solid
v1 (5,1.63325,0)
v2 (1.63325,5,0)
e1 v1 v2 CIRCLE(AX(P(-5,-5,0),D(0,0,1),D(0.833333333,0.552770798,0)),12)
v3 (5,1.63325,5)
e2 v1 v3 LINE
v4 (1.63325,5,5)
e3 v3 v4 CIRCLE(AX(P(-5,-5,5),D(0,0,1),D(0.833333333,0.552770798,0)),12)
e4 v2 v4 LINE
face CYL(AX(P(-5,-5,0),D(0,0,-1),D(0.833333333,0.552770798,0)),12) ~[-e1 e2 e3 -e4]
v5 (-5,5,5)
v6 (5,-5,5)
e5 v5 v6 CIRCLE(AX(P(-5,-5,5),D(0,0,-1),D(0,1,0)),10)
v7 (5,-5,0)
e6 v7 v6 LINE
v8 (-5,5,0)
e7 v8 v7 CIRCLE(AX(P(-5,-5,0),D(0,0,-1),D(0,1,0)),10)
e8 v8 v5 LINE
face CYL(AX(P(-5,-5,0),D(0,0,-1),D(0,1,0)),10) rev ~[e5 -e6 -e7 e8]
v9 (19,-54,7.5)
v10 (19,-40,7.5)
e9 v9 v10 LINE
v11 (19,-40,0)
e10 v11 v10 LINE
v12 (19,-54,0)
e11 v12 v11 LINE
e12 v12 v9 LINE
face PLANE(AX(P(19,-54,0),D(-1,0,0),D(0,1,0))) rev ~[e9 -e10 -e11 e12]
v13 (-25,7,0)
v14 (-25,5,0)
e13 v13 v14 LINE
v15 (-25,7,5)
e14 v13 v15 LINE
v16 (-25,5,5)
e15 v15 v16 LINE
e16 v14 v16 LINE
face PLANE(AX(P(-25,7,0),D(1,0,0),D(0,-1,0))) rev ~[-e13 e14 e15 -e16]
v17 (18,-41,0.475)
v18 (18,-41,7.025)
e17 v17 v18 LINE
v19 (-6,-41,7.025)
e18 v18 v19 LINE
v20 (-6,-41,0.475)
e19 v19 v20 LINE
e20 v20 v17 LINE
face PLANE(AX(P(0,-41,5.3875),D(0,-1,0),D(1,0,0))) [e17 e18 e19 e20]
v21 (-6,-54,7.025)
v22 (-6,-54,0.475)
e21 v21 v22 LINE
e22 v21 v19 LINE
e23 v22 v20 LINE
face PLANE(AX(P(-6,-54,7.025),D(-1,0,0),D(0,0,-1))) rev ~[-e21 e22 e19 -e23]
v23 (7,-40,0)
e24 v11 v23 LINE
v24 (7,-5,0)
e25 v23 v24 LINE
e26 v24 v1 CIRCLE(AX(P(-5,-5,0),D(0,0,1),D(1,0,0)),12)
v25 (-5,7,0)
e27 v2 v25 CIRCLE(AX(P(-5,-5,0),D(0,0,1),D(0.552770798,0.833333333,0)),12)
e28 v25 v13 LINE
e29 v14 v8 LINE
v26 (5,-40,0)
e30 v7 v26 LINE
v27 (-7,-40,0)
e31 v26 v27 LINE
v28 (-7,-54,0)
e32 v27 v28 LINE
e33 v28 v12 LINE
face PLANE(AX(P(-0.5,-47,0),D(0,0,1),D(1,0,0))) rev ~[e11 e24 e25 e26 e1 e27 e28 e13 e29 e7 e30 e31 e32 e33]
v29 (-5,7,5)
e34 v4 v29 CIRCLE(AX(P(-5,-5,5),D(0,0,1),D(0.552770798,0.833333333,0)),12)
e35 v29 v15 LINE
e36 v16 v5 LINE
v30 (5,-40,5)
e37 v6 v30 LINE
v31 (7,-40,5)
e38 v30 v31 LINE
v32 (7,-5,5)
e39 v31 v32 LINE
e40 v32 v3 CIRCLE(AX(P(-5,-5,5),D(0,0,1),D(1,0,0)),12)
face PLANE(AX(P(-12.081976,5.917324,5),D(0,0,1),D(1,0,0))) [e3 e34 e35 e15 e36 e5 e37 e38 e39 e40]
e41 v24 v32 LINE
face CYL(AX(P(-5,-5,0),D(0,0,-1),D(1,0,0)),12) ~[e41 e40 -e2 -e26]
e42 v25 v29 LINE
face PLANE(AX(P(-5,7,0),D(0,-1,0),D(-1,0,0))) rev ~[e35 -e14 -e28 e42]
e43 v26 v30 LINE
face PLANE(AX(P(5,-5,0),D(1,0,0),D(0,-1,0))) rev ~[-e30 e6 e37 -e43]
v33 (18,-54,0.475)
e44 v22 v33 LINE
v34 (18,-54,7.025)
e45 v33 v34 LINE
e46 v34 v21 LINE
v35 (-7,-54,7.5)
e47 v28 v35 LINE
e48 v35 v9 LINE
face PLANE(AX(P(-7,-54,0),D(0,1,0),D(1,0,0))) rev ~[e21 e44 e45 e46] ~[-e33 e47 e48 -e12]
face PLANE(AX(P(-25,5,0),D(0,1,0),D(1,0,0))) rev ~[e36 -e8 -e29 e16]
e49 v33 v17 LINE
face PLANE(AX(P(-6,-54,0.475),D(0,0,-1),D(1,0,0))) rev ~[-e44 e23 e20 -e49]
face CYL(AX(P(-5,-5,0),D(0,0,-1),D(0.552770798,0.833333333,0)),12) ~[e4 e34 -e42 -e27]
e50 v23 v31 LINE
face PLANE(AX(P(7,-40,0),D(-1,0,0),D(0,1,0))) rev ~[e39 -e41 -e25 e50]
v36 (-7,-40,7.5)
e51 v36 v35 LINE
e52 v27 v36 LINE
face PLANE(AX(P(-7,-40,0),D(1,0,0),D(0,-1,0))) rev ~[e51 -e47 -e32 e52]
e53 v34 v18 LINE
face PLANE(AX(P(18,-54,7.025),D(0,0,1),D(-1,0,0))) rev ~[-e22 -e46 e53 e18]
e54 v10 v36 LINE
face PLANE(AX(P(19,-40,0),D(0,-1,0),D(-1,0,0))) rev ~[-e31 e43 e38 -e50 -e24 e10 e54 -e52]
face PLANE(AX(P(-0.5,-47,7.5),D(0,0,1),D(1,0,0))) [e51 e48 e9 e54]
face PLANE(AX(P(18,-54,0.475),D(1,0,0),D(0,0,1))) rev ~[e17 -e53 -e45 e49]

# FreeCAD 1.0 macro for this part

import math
import FreeCAD as App
import Part
import Sketcher
Q = App.Units.Quantity


def add_polygon(sketch, points):
    """Adds a closed chain of lines whose ends are joined by coincident constraints."""
    first, n = sketch.GeometryCount, len(points)
    for a, b in zip(points, points[1:] + points[:1]):
        sketch.addGeometry(Part.LineSegment(App.Vector(*a, 0), App.Vector(*b, 0)), False)
    for i in range(n):
        sketch.addConstraint(Sketcher.Constraint("Coincident", first + i, 2, first + (i + 1) % n, 1))

doc = App.newDocument("Part")
body = doc.addObject("PartDesign::Body", "Body")

sketch1 = doc.addObject("Sketcher::SketchObject", "Sketch")
body.addObject(sketch1)
sketch1.AttachmentSupport = (doc.XY_Plane, [""])
sketch1.MapMode = "FlatFace"
sketch1.addGeometry([
    Part.LineSegment(App.Vector(-25, 5, 0), App.Vector(-5, 5, 0)),
    Part.ArcOfCircle(Part.Circle(App.Vector(-5, -5, 0), App.Vector(0, 0, 1), 10), math.radians(0), math.radians(90)),
    Part.LineSegment(App.Vector(5, -5, 0), App.Vector(5, -40, 0)),
    Part.LineSegment(App.Vector(5, -40, 0), App.Vector(7, -40, 0)),
    Part.LineSegment(App.Vector(7, -40, 0), App.Vector(7, -5, 0)),
    Part.ArcOfCircle(Part.Circle(App.Vector(-5, -5, 0), App.Vector(0, 0, 1), 12), math.radians(0), math.radians(34)),
    Part.ArcOfCircle(Part.Circle(App.Vector(-5, -5, 0), App.Vector(0, 0, 1), 12), math.radians(34), math.radians(56)),
    Part.ArcOfCircle(Part.Circle(App.Vector(-5, -5, 0), App.Vector(0, 0, 1), 12), math.radians(56), math.radians(90)),
    Part.LineSegment(App.Vector(-5, 7, 0), App.Vector(-25, 7, 0)),
    Part.LineSegment(App.Vector(-25, 7, 0), App.Vector(-25, 5, 0)),
], False)
sketch1.addConstraint([
    Sketcher.Constraint("Tangent", 0, 2, 1, 2),
    Sketcher.Constraint("Tangent", 1, 1, 2, 1),
    Sketcher.Constraint("Coincident", 2, 2, 3, 1),
    Sketcher.Constraint("Coincident", 3, 2, 4, 1),
    Sketcher.Constraint("Tangent", 4, 2, 5, 1),
    Sketcher.Constraint("Tangent", 5, 2, 6, 1),
    Sketcher.Constraint("Tangent", 6, 2, 7, 1),
    Sketcher.Constraint("Tangent", 7, 2, 8, 1),
    Sketcher.Constraint("Coincident", 8, 2, 9, 1),
    Sketcher.Constraint("Coincident", 9, 2, 0, 1),
    Sketcher.Constraint("Horizontal", 0),
    Sketcher.Constraint("Vertical", 2),
    Sketcher.Constraint("Horizontal", 3),
    Sketcher.Constraint("Vertical", 4),
    Sketcher.Constraint("Horizontal", 8),
    Sketcher.Constraint("Vertical", 9),
    Sketcher.Constraint("Coincident", 5, 3, 1, 3),
    Sketcher.Constraint("Coincident", 7, 3, 1, 3),
    Sketcher.Constraint("Symmetric", 0, 2, 1, 1, -1, 1),
    Sketcher.Constraint("Horizontal", 0, 2, 6, 2),
    Sketcher.Constraint("Vertical", 2, 2, 5, 2),
    Sketcher.Constraint("Radius", 1, Q("10 mm")),
    Sketcher.Constraint("Radius", 5, Q("12 mm")),
    Sketcher.Constraint("DistanceX", 0, 1, 0, 2, Q("20 mm")),
    Sketcher.Constraint("DistanceY", 2, 2, 2, 1, Q("35 mm")),
])
pad1 = doc.addObject("PartDesign::Pad", "Pad")
body.addObject(pad1)
pad1.Profile = sketch1
pad1.Length = 5

sketch2 = doc.addObject("Sketcher::SketchObject", "Sketch001")
body.addObject(sketch2)
sketch2.AttachmentSupport = (doc.XY_Plane, [""])
sketch2.MapMode = "FlatFace"
add_polygon(sketch2, [(-7, -40), (-7, -54), (19, -54), (19, -40)])
sketch2.addConstraint([
    Sketcher.Constraint("Vertical", 0),
    Sketcher.Constraint("Horizontal", 1),
    Sketcher.Constraint("Vertical", 2),
    Sketcher.Constraint("Horizontal", 3),
    Sketcher.Constraint("DistanceX", 1, 1, 1, 2, Q("26 mm")),
    Sketcher.Constraint("DistanceY", 0, 2, 0, 1, Q("14 mm")),
    Sketcher.Constraint("DistanceX", 0, 2, -1, 1, Q("7 mm")),
    Sketcher.Constraint("DistanceY", 0, 2, -1, 1, Q("54 mm")),
])
pad2 = doc.addObject("PartDesign::Pad", "Pad001")
body.addObject(pad2)
pad2.Profile = sketch2
pad2.Length = 7.5

sketch3 = doc.addObject("Sketcher::SketchObject", "Sketch002")
body.addObject(sketch3)
sketch3.AttachmentSupport = (doc.XZ_Plane, [""])
sketch3.MapMode = "FlatFace"
sketch3.AttachmentOffset = App.Placement(App.Vector(0, 0, 54), App.Rotation())
add_polygon(sketch3, [(-6, 7), (-6, 0), (18, 0), (18, 7)])
sketch3.addConstraint([
    Sketcher.Constraint("Vertical", 0),
    Sketcher.Constraint("Horizontal", 1),
    Sketcher.Constraint("Vertical", 2),
    Sketcher.Constraint("Horizontal", 3),
    Sketcher.Constraint("DistanceX", 1, 1, 1, 2, Q("24 mm")),
    Sketcher.Constraint("DistanceX", 0, 2, -1, 1, Q("6 mm")),
    Sketcher.Constraint("DistanceY", 0, 2, 0, 1, Q("6.55 mm")),
    Sketcher.Constraint("DistanceY", -1, 1, 0, 2, Q("0.475 mm")),
])
pocket1 = doc.addObject("PartDesign::Pocket", "Pocket")
body.addObject(pocket1)
pocket1.Profile = sketch3
pocket1.Length = 13

doc.recompute()
